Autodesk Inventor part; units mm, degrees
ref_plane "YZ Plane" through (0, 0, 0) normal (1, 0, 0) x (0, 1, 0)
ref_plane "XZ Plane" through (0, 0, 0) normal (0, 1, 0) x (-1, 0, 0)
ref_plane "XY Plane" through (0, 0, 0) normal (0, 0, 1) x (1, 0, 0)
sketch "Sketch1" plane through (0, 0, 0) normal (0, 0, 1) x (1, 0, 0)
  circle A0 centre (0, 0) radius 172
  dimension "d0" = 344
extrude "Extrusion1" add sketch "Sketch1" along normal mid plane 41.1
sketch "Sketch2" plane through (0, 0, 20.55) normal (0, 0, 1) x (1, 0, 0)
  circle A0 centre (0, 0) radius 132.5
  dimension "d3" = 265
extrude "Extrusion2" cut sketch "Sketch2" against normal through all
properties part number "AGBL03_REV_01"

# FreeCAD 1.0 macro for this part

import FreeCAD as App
import Part
import Sketcher
from FreeCAD import Vector

doc = App.newDocument("Part")
body = doc.addObject("PartDesign::Body", "Body")

# Sketch on XY plane
sketch1 = body.newObject("Sketcher::SketchObject", "Sketch")
sketch1.AttachmentSupport = (doc.getObject("XY_Plane"), [""])
sketch1.MapMode = "FlatFace"
sketch1.addGeometry(Part.Circle(Vector(0, 0, 0), Vector(0, 0, 1), 172), False)
sketch1.addConstraint(Sketcher.Constraint("Coincident", 0, 3, -1, 1))
sketch1.addConstraint(Sketcher.Constraint("Diameter", 0, 344.0))
pad1 = body.newObject("PartDesign::Pad", "Pad")
pad1.Profile = sketch1
pad1.Length = 41.1
pad1.Midplane = True

# Sketch on XY plane
sketch2 = body.newObject("Sketcher::SketchObject", "Sketch001")
sketch2.AttachmentSupport = (doc.getObject("XY_Plane"), [""])
sketch2.MapMode = "FlatFace"
sketch2.AttachmentOffset = App.Placement(Vector(0, 0, 20.55), App.Rotation())
sketch2.addGeometry(Part.Circle(Vector(0, 0, 0), Vector(0, 0, 1), 132), False)
sketch2.addConstraint(Sketcher.Constraint("Coincident", 0, 3, -1, 1))
sketch2.addConstraint(Sketcher.Constraint("Diameter", 0, 265.0))
pocket1 = body.newObject("PartDesign::Pocket", "Pocket")
pocket1.Profile = sketch2
pocket1.Type = "ThroughAll"

doc.recompute()
